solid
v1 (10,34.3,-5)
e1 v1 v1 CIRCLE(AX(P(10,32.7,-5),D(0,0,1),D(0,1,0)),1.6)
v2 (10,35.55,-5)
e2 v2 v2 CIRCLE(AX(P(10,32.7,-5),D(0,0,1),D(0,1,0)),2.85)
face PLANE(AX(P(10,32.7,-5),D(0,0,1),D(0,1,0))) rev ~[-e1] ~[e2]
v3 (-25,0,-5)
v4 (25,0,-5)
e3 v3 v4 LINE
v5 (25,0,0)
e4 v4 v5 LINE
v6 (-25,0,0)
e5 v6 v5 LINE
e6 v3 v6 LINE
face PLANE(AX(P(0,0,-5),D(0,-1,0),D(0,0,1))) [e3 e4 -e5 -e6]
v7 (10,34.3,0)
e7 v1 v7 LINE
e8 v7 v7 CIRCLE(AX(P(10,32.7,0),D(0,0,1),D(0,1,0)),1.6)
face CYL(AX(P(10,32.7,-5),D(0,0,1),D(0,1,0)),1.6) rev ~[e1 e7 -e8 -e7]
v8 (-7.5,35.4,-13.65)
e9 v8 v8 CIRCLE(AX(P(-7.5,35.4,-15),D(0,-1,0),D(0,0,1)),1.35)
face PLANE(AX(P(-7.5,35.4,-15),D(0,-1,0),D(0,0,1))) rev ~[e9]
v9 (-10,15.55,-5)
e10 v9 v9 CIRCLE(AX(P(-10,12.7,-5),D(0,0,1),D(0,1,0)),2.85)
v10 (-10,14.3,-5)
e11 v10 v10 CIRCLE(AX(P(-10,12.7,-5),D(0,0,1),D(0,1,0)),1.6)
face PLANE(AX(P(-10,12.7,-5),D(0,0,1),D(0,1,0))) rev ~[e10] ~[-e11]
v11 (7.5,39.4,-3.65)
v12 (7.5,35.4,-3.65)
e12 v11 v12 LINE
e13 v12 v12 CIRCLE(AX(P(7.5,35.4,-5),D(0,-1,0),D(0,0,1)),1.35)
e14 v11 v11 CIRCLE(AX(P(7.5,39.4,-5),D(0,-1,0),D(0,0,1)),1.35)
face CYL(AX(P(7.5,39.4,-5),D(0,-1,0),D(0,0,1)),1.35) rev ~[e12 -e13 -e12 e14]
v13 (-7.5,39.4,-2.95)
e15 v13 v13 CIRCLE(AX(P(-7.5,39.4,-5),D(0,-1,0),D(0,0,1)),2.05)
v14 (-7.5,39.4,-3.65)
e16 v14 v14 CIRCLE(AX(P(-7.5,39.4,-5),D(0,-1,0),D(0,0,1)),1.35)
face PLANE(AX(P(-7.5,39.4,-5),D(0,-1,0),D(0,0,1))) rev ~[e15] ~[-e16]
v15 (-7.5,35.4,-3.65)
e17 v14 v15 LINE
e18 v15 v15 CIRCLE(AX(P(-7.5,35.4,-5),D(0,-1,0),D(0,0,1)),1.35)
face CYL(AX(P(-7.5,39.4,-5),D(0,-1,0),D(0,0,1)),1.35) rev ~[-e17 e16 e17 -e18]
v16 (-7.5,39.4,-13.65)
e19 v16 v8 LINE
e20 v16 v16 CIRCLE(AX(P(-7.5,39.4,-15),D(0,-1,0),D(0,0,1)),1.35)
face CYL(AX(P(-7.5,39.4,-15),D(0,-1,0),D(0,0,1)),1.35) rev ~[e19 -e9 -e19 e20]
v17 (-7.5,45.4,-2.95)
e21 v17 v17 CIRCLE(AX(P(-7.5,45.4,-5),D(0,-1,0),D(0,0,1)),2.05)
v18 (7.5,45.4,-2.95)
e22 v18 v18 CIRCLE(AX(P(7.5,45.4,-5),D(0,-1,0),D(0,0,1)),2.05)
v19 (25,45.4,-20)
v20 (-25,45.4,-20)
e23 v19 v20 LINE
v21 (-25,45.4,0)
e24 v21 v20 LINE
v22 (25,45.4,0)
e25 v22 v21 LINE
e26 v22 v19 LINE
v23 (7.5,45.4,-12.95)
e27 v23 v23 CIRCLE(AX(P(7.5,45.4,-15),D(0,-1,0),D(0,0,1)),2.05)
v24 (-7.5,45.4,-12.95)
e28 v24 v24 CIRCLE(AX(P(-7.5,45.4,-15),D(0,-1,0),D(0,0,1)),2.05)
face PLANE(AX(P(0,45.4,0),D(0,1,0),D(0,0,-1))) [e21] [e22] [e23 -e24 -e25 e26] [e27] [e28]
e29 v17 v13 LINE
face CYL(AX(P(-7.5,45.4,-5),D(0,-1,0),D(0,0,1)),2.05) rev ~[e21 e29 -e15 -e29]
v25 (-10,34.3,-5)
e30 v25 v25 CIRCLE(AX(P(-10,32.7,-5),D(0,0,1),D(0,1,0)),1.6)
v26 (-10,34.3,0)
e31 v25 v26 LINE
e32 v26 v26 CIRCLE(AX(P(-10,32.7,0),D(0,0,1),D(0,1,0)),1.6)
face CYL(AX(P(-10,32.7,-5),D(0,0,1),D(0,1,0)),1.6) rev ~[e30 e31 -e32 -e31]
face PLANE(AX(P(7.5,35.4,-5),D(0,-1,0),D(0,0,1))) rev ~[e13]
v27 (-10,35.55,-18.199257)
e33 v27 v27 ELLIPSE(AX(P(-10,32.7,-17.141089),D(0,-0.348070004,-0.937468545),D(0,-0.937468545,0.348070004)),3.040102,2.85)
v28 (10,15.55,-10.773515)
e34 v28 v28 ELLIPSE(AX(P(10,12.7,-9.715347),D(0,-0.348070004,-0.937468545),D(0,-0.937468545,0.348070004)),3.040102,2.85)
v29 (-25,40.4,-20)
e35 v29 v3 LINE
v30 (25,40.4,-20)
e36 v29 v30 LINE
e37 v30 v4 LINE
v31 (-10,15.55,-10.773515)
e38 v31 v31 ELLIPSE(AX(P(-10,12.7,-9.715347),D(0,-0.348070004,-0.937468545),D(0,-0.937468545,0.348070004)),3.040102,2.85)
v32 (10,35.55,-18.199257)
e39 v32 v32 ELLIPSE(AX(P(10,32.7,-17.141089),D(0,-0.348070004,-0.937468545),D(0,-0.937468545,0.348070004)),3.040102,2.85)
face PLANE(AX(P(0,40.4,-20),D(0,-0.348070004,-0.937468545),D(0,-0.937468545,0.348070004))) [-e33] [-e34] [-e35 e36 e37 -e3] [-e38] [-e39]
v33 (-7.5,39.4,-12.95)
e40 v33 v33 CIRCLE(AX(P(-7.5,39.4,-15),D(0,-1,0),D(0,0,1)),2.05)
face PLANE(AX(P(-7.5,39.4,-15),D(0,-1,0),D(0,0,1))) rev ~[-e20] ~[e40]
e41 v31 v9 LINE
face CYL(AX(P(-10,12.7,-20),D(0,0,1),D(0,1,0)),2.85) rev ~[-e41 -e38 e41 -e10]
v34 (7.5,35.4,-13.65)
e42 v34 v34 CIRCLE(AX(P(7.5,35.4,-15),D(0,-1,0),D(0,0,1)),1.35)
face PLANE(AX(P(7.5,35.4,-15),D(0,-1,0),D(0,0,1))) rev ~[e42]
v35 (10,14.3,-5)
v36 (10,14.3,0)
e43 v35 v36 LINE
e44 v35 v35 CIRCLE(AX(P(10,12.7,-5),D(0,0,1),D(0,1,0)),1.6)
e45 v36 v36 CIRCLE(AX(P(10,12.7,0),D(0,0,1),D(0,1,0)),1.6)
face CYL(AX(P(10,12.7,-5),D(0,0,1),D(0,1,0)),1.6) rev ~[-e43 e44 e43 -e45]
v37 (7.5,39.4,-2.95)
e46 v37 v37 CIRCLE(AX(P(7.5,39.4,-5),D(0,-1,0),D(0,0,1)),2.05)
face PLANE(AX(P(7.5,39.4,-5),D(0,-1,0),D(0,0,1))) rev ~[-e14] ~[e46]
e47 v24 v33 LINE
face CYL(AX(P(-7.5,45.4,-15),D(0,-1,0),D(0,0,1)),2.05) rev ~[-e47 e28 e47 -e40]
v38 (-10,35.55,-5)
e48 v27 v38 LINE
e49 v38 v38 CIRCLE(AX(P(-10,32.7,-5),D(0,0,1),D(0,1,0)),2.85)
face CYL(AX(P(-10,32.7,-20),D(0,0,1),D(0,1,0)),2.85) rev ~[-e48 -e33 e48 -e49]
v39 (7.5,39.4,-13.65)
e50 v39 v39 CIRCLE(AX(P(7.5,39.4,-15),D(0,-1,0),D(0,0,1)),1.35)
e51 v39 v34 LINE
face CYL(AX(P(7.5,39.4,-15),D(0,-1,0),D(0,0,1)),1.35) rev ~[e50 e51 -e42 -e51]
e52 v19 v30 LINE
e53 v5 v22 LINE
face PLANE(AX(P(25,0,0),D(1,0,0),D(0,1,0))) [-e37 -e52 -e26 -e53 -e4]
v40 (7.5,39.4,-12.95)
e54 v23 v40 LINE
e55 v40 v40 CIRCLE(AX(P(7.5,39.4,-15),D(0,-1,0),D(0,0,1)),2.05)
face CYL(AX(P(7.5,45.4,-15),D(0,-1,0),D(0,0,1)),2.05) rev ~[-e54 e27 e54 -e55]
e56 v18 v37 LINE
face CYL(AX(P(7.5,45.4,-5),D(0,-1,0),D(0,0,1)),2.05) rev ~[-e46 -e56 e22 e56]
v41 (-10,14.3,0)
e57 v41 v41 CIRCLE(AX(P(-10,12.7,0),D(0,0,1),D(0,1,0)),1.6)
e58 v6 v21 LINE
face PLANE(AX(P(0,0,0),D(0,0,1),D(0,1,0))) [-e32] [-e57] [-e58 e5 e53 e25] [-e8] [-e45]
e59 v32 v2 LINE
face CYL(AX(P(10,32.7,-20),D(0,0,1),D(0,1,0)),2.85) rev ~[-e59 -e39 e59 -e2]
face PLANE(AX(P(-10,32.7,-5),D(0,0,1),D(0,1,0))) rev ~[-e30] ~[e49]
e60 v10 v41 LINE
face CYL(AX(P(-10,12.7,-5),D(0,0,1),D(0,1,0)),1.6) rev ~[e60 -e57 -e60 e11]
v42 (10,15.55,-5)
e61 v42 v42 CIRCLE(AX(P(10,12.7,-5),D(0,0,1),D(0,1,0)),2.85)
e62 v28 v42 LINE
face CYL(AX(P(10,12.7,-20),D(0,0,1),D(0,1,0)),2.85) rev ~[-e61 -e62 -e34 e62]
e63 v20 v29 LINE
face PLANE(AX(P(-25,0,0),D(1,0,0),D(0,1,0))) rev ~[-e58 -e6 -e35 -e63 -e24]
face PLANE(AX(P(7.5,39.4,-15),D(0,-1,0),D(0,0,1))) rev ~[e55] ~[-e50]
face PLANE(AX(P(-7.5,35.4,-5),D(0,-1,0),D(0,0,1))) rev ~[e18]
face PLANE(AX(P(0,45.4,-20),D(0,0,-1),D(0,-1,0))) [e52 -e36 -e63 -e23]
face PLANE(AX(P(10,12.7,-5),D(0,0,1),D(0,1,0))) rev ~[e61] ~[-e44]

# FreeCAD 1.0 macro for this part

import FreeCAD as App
import Part
import Sketcher
Q = App.Units.Quantity

doc = App.newDocument("Part")
body = doc.addObject("PartDesign::Body", "Body")

# Sketch on YZ plane
sketch1 = doc.addObject("Sketcher::SketchObject", "Sketch")
body.addObject(sketch1)
sketch1.AttachmentSupport = (doc.YZ_Plane, [""])
sketch1.MapMode = "FlatFace"
sketch1.addGeometry([
    Part.LineSegment(App.Vector(45.4, 0, 0), App.Vector(0, 0, 0)),  # 0
    Part.LineSegment(App.Vector(0, 0, 0), App.Vector(0, -5, 0)),  # 1
    Part.LineSegment(App.Vector(0, -5, 0), App.Vector(40.4, -20, 0)),  # 2
    Part.LineSegment(App.Vector(40.4, -20, 0), App.Vector(45.4, -20, 0)),  # 3
    Part.LineSegment(App.Vector(45.4, -20, 0), App.Vector(45.4, 0, 0)),  # 4
], False)
sketch1.addConstraint([
    Sketcher.Constraint("Coincident", 0, 2, 1, 1),
    Sketcher.Constraint("Coincident", 1, 2, 2, 1),
    Sketcher.Constraint("Coincident", 2, 2, 3, 1),
    Sketcher.Constraint("Coincident", 3, 2, 4, 1),
    Sketcher.Constraint("Coincident", 4, 2, 0, 1),
    Sketcher.Constraint("Horizontal", 0),
    Sketcher.Constraint("Vertical", 1),
    Sketcher.Constraint("Horizontal", 3),
    Sketcher.Constraint("Vertical", 4),
    Sketcher.Constraint("Coincident", 0, 2, -1, 1),
    Sketcher.Constraint("Equal", 3, 1),
    Sketcher.Constraint("DistanceX", 3, 1, 3, 2, Q("5 mm")),
    Sketcher.Constraint("DistanceY", 4, 1, 4, 2, Q("20 mm")),
    Sketcher.Constraint("DistanceX", 0, 2, 0, 1, Q("45.4 mm")),
])
pad1 = doc.addObject("PartDesign::Pad", "Pad")
body.addObject(pad1)
pad1.Profile = sketch1
pad1.Length = 50
pad1.Midplane = True

# Sketch on XY plane
sketch2 = doc.addObject("Sketcher::SketchObject", "Sketch001")
body.addObject(sketch2)
sketch2.AttachmentSupport = (doc.XY_Plane, [""])
sketch2.MapMode = "FlatFace"
sketch2.AttachmentOffset = App.Placement(App.Vector(0, 0, -20), App.Rotation())
sketch2.addGeometry([
    Part.Circle(App.Vector(10, 32.7, 0), App.Vector(0, 0, 1), 1.6),
    Part.Circle(App.Vector(10, 12.7, 0), App.Vector(0, 0, 1), 1.6),
    Part.Circle(App.Vector(-10, 12.7, 0), App.Vector(0, 0, 1), 1.6),
    Part.Circle(App.Vector(-10, 32.7, 0), App.Vector(0, 0, 1), 1.6),
], False)
sketch2.addConstraint([
    Sketcher.Constraint("Equal", 0, 1),
    Sketcher.Constraint("Equal", 1, 2),
    Sketcher.Constraint("Equal", 2, 3),
    Sketcher.Constraint("Symmetric", 1, 3, 2, 3, -2),
    Sketcher.Constraint("Symmetric", 0, 3, 3, 3, -2),
    Sketcher.Constraint("Vertical", 0, 3, 1, 3),
    Sketcher.Constraint("Diameter", 0, Q("3.2 mm")),
    Sketcher.Constraint("DistanceX", -1, 1, 0, 3, Q("10 mm")),
    Sketcher.Constraint("DistanceY", 1, 3, 0, 3, Q("20 mm")),
    Sketcher.Constraint("DistanceY", -1, 1, 0, 3, Q("32.7 mm")),
])
doc.recompute()
hole = doc.addObject("PartDesign::Hole", "Hole")
body.addObject(hole)
hole.Profile = sketch2
hole.ThreadType = "None"
hole.Diameter = 3.2
hole.DepthType = "ThroughAll"
hole.HoleCutType = "Counterbore"
hole.HoleCutDiameter = 5.7
hole.HoleCutDepth = 15
hole.Reversed = True

# Sketch on XZ plane
sketch3 = doc.addObject("Sketcher::SketchObject", "Sketch002")
body.addObject(sketch3)
sketch3.AttachmentSupport = (doc.XZ_Plane, [""])
sketch3.MapMode = "FlatFace"
sketch3.AttachmentOffset = App.Placement(App.Vector(0, 0, -45.4), App.Rotation())
sketch3.addGeometry([
    Part.Circle(App.Vector(7.5, -5, 0), App.Vector(0, 0, 1), 1.35),
    Part.Circle(App.Vector(-7.5, -5, 0), App.Vector(0, 0, 1), 1.35),
    Part.Circle(App.Vector(-7.5, -15, 0), App.Vector(0, 0, 1), 1.35),
    Part.Circle(App.Vector(7.5, -15, 0), App.Vector(0, 0, 1), 1.35),
], False)
sketch3.addConstraint([
    Sketcher.Constraint("Equal", 0, 1),
    Sketcher.Constraint("Equal", 1, 2),
    Sketcher.Constraint("Equal", 2, 3),
    Sketcher.Constraint("Symmetric", 0, 3, 1, 3, -2),
    Sketcher.Constraint("Symmetric", 2, 3, 3, 3, -2),
    Sketcher.Constraint("Vertical", 1, 3, 2, 3),
    Sketcher.Constraint("Diameter", 0, Q("2.7 mm")),
    Sketcher.Constraint("DistanceY", 0, 3, -1, 1, Q("5 mm")),
    Sketcher.Constraint("DistanceY", 2, 3, -1, 1, Q("15 mm")),
    Sketcher.Constraint("DistanceX", 1, 3, 0, 3, Q("15 mm")),
])
doc.recompute()
hole2 = doc.addObject("PartDesign::Hole", "Hole001")
body.addObject(hole2)
hole2.Profile = sketch3
hole2.ThreadType = "None"
hole2.Diameter = 2.7
hole2.DepthType = "Dimension"
hole2.Depth = 10
hole2.DrillPoint = "Flat"
hole2.HoleCutType = "Counterbore"
hole2.HoleCutDiameter = 4.1
hole2.HoleCutDepth = 6
hole2.Reversed = True

doc.recompute()
